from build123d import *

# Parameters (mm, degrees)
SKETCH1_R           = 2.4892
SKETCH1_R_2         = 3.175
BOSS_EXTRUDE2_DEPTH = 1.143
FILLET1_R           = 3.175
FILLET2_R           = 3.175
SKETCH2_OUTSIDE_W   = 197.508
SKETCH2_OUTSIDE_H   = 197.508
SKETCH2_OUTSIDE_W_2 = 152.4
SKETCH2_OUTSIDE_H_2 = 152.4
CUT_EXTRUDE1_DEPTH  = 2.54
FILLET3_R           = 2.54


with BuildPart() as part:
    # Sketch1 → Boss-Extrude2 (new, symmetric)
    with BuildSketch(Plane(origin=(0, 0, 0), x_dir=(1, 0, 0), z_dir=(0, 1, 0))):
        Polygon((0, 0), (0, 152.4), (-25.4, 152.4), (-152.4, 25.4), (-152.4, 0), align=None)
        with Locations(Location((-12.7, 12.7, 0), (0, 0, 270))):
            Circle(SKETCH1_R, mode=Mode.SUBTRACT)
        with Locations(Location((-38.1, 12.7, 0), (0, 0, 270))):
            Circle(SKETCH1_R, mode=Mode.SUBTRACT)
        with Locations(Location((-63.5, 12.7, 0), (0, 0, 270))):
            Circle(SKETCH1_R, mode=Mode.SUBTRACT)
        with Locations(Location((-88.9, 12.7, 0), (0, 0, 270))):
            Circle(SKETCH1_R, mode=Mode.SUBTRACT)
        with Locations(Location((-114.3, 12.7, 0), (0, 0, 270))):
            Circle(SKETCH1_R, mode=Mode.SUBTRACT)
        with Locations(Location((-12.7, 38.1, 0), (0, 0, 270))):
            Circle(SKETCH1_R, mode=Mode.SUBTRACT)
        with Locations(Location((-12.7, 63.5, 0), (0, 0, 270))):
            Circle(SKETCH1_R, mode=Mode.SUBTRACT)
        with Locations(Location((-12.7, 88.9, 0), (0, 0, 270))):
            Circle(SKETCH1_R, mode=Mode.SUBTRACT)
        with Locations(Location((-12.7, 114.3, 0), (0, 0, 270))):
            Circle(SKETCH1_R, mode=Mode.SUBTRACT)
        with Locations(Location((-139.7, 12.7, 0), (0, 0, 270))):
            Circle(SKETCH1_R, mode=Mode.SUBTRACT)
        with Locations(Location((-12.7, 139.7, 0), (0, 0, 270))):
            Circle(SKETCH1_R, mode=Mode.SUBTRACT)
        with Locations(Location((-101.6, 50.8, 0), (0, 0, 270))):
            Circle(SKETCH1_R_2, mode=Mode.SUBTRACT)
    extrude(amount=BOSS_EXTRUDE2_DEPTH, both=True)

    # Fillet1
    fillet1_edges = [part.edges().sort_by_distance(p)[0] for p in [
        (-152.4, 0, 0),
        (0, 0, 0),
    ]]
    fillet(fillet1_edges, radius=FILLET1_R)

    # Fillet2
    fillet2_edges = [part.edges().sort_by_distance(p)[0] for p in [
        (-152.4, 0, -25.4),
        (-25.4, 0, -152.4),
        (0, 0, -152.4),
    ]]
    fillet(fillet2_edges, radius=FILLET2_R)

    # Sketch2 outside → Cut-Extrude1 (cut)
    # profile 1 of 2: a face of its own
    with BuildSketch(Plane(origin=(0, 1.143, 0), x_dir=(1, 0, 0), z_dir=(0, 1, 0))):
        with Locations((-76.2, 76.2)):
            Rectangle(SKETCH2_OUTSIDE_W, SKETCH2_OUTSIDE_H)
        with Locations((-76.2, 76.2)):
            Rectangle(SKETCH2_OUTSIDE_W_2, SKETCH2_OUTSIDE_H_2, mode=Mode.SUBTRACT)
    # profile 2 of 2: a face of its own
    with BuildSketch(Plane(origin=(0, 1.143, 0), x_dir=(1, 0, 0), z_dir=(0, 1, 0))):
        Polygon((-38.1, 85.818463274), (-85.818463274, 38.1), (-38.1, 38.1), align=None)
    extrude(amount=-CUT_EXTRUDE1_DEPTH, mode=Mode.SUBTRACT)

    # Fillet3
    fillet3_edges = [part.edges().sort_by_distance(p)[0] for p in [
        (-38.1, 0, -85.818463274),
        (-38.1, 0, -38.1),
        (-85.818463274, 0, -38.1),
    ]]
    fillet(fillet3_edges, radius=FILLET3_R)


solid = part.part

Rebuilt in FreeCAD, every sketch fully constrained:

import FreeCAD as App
import Part
import Sketcher

V = App.Vector
Q = App.Units.Quantity


def edges_at(feature, points):
    """Names of the edges that pass closest to the given points."""
    edges = feature.Shape.Edges
    near = lambda p: min(range(len(edges)), key=lambda i: edges[i].distToShape(Part.Vertex(*p))[0])
    return sorted({f"Edge{near(p) + 1}" for p in points})

doc = App.newDocument("Part")
body = doc.addObject("PartDesign::Body", "Body")

# Sketch on XZ plane
sketch1 = body.newObject("Sketcher::SketchObject", "Sketch")
sketch1.AttachmentSupport = (doc.getObject("XZ_Plane"), [""])
sketch1.MapMode = "FlatFace"
sketch1.addGeometry([
    Part.LineSegment(V(0, 0, 0), V(0, -152.4, 0)),  # 0
    Part.LineSegment(V(0, -152.4, 0), V(-25.4, -152.4, 0)),  # 1
    Part.LineSegment(V(-25.4, -152.4, 0), V(-152.4, -25.4, 0)),  # 2
    Part.LineSegment(V(-152.4, -25.4, 0), V(-152.4, 0, 0)),  # 3
    Part.LineSegment(V(-152.4, 0, 0), V(0, 0, 0)),  # 4
    Part.Circle(V(-139.7, -12.7, 0), V(0, 0, 1), 2.5),  # 5
    Part.Circle(V(-114.3, -12.7, 0), V(0, 0, 1), 2.5),  # 6
    Part.Circle(V(-88.9, -12.7, 0), V(0, 0, 1), 2.5),  # 7
    Part.Circle(V(-101.6, -50.8, 0), V(0, 0, 1), 3.2),  # 8
    Part.Circle(V(-63.5, -12.7, 0), V(0, 0, 1), 2.5),  # 9
    Part.Circle(V(-38.1, -12.7, 0), V(0, 0, 1), 2.5),  # 10
    Part.Circle(V(-12.7, -12.7, 0), V(0, 0, 1), 2.5),  # 11
    Part.Circle(V(-12.7, -38.1, 0), V(0, 0, 1), 2.5),  # 12
    Part.Circle(V(-12.7, -63.5, 0), V(0, 0, 1), 2.5),  # 13
    Part.Circle(V(-12.7, -88.9, 0), V(0, 0, 1), 2.5),  # 14
    Part.Circle(V(-12.7, -114.3, 0), V(0, 0, 1), 2.5),  # 15
    Part.Circle(V(-12.7, -139.7, 0), V(0, 0, 1), 2.5),  # 16
], False)
sketch1.addConstraint([
    Sketcher.Constraint("Coincident", 0, 2, 1, 1),
    Sketcher.Constraint("Coincident", 1, 2, 2, 1),
    Sketcher.Constraint("Coincident", 2, 2, 3, 1),
    Sketcher.Constraint("Coincident", 3, 2, 4, 1),
    Sketcher.Constraint("Coincident", 4, 2, 0, 1),
    Sketcher.Constraint("Vertical", 0),
    Sketcher.Constraint("Horizontal", 1),
    Sketcher.Constraint("Vertical", 3),
    Sketcher.Constraint("Horizontal", 4),
    Sketcher.Constraint("Coincident", 4, 2, -1, 1),
    Sketcher.Constraint("Equal", 5, 6),
    Sketcher.Constraint("Equal", 6, 7),
    Sketcher.Constraint("Equal", 7, 9),
    Sketcher.Constraint("Equal", 9, 10),
    Sketcher.Constraint("Equal", 10, 11),
    Sketcher.Constraint("Equal", 11, 12),
    Sketcher.Constraint("Equal", 12, 13),
    Sketcher.Constraint("Equal", 13, 14),
    Sketcher.Constraint("Equal", 14, 15),
    Sketcher.Constraint("Equal", 15, 16),
    Sketcher.Constraint("Horizontal", 5, 3, 6, 3),
    Sketcher.Constraint("Horizontal", 6, 3, 7, 3),
    Sketcher.Constraint("Horizontal", 7, 3, 9, 3),
    Sketcher.Constraint("Horizontal", 9, 3, 10, 3),
    Sketcher.Constraint("Horizontal", 10, 3, 11, 3),
    Sketcher.Constraint("Vertical", 11, 3, 12, 3),
    Sketcher.Constraint("Vertical", 12, 3, 13, 3),
    Sketcher.Constraint("Vertical", 13, 3, 14, 3),
    Sketcher.Constraint("Vertical", 14, 3, 15, 3),
    Sketcher.Constraint("Vertical", 15, 3, 16, 3),
    Sketcher.Constraint("Equal", 4, 0),
    Sketcher.Constraint("Equal", 1, 3),
    Sketcher.Constraint("Diameter", 8, Q("0.25 in")),
    Sketcher.Constraint("DistanceX", 1, 2, 1, 1, Q("1 in")),
    Sketcher.Constraint("DistanceX", 4, 1, 4, 2, Q("6 in")),
    Sketcher.Constraint("Diameter", 5, Q("0.196 in")),
    Sketcher.Constraint("DistanceX", 8, 3, -1, 1, Q("4 in")),
    Sketcher.Constraint("DistanceY", 8, 3, -1, 1, Q("2 in")),
    Sketcher.Constraint("DistanceX", 5, 3, 6, 3, Q("1 in")),
    Sketcher.Constraint("DistanceX", 6, 3, 7, 3, Q("1 in")),
    Sketcher.Constraint("DistanceX", 7, 3, 9, 3, Q("1 in")),
    Sketcher.Constraint("DistanceX", 9, 3, 10, 3, Q("1 in")),
    Sketcher.Constraint("DistanceX", 10, 3, 11, 3, Q("1 in")),
    Sketcher.Constraint("DistanceY", 12, 3, 11, 3, Q("1 in")),
    Sketcher.Constraint("DistanceY", 13, 3, 12, 3, Q("1 in")),
    Sketcher.Constraint("DistanceY", 14, 3, 13, 3, Q("1 in")),
    Sketcher.Constraint("DistanceY", 15, 3, 14, 3, Q("1 in")),
    Sketcher.Constraint("DistanceY", 16, 3, 15, 3, Q("1 in")),
    Sketcher.Constraint("DistanceX", 5, 3, -1, 1, Q("5.5 in")),
    Sketcher.Constraint("DistanceY", 5, 3, -1, 1, Q("0.5 in")),
])
pad1 = body.newObject("PartDesign::Pad", "Pad")
pad1.Profile = sketch1
pad1.Length = Q("0.09 in")
pad1.Midplane = True
doc.recompute()

fillet = body.newObject("PartDesign::Fillet", "Fillet")
fillet.Base = (pad1, edges_at(pad1, [(-152.4, 0, 0), (0, 0, 0)]))
fillet.Radius = Q("0.125 in")
doc.recompute()

fillet2 = body.newObject("PartDesign::Fillet", "Fillet001")
fillet2.Base = (fillet, edges_at(fillet, [(-152.4, 0, -25.4), (-25.4, 0, -152.4), (0, 0, -152.4)]))
fillet2.Radius = Q("0.125 in")

# Sketch on XZ plane
sketch2 = body.newObject("Sketcher::SketchObject", "Sketch001")
sketch2.AttachmentSupport = (doc.getObject("XZ_Plane"), [""])
sketch2.MapMode = "FlatFace"
sketch2.AttachmentOffset = App.Placement(V(0, 0, -0.045 * 25.4), App.Rotation())
sketch2.addGeometry([
    Part.LineSegment(V(-175, -175, 0), V(-175, 23, 0)),  # 0
    Part.LineSegment(V(-175, 23, 0), V(23, 23, 0)),  # 1
    Part.LineSegment(V(23, 23, 0), V(23, -175, 0)),  # 2
    Part.LineSegment(V(23, -175, 0), V(-175, -175, 0)),  # 3
    Part.LineSegment(V(0, 0, 0), V(-152, 0, 0)),  # 4
    Part.LineSegment(V(-152, 0, 0), V(-152, -152, 0)),  # 5
    Part.LineSegment(V(-152, -152, 0), V(0, -152, 0)),  # 6
    Part.LineSegment(V(0, -152, 0), V(0, 0, 0)),  # 7
    Part.LineSegment(V(-38, -86, 0), V(-86, -38, 0)),  # 8
    Part.LineSegment(V(-86, -38, 0), V(-38, -38, 0)),  # 9
    Part.LineSegment(V(-38, -38, 0), V(-38, -86, 0)),  # 10
], False)
sketch2.addConstraint([
    Sketcher.Constraint("Coincident", 0, 2, 1, 1),
    Sketcher.Constraint("Coincident", 1, 2, 2, 1),
    Sketcher.Constraint("Coincident", 2, 2, 3, 1),
    Sketcher.Constraint("Coincident", 3, 2, 0, 1),
    Sketcher.Constraint("Coincident", 4, 2, 5, 1),
    Sketcher.Constraint("Coincident", 5, 2, 6, 1),
    Sketcher.Constraint("Coincident", 6, 2, 7, 1),
    Sketcher.Constraint("Coincident", 7, 2, 4, 1),
    Sketcher.Constraint("Coincident", 8, 2, 9, 1),
    Sketcher.Constraint("Coincident", 9, 2, 10, 1),
    Sketcher.Constraint("Coincident", 10, 2, 8, 1),
    Sketcher.Constraint("Vertical", 0),
    Sketcher.Constraint("Horizontal", 1),
    Sketcher.Constraint("Vertical", 2),
    Sketcher.Constraint("Horizontal", 3),
    Sketcher.Constraint("Horizontal", 4),
    Sketcher.Constraint("Vertical", 5),
    Sketcher.Constraint("Horizontal", 6),
    Sketcher.Constraint("Vertical", 7),
    Sketcher.Constraint("Horizontal", 9),
    Sketcher.Constraint("Vertical", 10),
    Sketcher.Constraint("Coincident", 7, 2, -1, 1),
    Sketcher.Constraint("Equal", 3, 0),
    Sketcher.Constraint("Equal", 6, 5),
    Sketcher.Constraint("Equal", 9, 10),
    Sketcher.Constraint("DistanceX", 4, 2, 4, 1, Q("6 in")),
    Sketcher.Constraint("DistanceY", 8, 2, -1, 1, Q("1.5 in")),
    Sketcher.Constraint("DistanceX", 9, 2, -1, 1, Q("1.5 in")),
    Sketcher.Constraint("DistanceX", 1, 1, 1, 2, 197.508),
    Sketcher.Constraint("DistanceX", 0, 2, -1, 1, 174.954),
    Sketcher.Constraint("DistanceY", -1, 1, 0, 2, 22.554),
    Sketcher.Constraint("DistanceX", 9, 1, 9, 2, 47.718463),
])
pocket1 = body.newObject("PartDesign::Pocket", "Pocket")
pocket1.Profile = sketch2
pocket1.Length = Q("0.1 in")
pocket1.Reversed = True
doc.recompute()

fillet3 = body.newObject("PartDesign::Fillet", "Fillet002")
fillet3.Base = (pocket1, edges_at(pocket1, [(-38.1, 0, -85.818), (-38.1, 0, -38.1), (-85.818, 0, -38.1)]))
fillet3.Radius = Q("0.1 in")

doc.recompute()
